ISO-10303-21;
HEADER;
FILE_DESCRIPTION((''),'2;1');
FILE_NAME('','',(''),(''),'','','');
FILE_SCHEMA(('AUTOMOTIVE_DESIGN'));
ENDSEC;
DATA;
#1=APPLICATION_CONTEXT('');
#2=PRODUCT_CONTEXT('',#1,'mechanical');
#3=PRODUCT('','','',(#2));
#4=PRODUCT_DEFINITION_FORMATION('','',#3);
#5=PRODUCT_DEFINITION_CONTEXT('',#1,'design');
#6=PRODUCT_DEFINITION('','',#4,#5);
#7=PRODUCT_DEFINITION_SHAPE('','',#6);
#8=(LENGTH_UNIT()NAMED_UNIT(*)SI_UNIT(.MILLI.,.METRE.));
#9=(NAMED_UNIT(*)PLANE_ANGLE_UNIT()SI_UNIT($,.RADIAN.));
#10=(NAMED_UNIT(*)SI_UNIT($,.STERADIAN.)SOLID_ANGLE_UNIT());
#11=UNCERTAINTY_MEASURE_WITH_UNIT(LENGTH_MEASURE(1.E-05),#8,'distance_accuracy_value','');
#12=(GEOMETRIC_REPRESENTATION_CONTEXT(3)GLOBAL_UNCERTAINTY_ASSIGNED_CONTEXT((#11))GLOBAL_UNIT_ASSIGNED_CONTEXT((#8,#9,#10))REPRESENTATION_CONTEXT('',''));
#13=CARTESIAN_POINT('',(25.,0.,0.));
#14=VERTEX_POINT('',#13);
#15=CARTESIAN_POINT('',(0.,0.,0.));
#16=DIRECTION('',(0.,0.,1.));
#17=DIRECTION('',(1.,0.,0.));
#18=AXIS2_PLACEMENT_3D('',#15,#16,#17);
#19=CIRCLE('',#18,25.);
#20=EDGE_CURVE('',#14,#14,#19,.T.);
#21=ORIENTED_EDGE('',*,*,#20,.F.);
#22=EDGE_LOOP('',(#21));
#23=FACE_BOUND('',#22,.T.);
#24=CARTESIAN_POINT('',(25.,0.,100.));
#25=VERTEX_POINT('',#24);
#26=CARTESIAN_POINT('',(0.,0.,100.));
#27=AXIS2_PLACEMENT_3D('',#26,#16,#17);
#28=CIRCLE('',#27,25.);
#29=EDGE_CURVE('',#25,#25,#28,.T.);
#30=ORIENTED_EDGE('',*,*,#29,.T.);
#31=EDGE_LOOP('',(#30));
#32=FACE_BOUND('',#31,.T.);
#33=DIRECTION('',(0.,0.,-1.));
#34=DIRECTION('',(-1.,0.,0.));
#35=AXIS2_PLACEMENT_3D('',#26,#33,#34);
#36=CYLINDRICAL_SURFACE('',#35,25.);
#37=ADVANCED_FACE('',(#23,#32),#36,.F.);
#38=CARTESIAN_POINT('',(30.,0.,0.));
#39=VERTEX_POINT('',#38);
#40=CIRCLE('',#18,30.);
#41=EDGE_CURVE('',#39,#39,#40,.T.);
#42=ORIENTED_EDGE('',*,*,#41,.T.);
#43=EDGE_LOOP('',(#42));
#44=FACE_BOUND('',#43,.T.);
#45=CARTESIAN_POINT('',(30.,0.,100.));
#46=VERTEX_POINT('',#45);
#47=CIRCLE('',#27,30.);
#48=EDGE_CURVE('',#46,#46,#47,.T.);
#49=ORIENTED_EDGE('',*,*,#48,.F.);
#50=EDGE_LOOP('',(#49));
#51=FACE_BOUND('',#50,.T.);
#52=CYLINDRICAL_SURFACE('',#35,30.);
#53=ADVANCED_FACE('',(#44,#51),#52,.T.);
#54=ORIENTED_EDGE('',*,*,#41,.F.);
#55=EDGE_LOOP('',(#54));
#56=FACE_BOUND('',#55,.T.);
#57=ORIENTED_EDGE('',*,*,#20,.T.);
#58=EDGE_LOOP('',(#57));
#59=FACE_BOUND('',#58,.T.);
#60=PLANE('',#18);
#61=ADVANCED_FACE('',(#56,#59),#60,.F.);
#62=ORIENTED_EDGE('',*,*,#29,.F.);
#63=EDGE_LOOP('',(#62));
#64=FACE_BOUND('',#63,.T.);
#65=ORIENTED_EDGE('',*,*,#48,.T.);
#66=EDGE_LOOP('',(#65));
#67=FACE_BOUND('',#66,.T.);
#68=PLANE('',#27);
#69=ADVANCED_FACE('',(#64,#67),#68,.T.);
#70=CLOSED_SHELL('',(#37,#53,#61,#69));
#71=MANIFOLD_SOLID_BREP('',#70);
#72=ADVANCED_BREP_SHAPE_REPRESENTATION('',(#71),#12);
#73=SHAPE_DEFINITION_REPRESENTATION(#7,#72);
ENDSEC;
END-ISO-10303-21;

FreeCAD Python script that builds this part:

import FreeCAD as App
import Part
import Sketcher
from FreeCAD import Vector

doc = App.newDocument("Part")
body = doc.addObject("PartDesign::Body", "Body")

sketch1 = doc.addObject("Sketcher::SketchObject", "Sketch")
body.addObject(sketch1)
sketch1.AttachmentSupport = (doc.XY_Plane, [""])
sketch1.MapMode = "FlatFace"
sketch1.addGeometry([
    Part.Circle(Vector(0, 0, 0), Vector(0, 0, 1), 30),
    Part.Circle(Vector(0, 0, 0), Vector(0, 0, 1), 25),
], False)
sketch1.addConstraint([
    Sketcher.Constraint("Coincident", 0, 3, -1, 1),
    Sketcher.Constraint("Coincident", 1, 3, -1, 1),
    Sketcher.Constraint("Diameter", 0, 60.0),
    Sketcher.Constraint("Diameter", 1, 50.0),
])
pad1 = doc.addObject("PartDesign::Pad", "Pad")
body.addObject(pad1)
pad1.Profile = sketch1
pad1.Length = 100

doc.recompute()
